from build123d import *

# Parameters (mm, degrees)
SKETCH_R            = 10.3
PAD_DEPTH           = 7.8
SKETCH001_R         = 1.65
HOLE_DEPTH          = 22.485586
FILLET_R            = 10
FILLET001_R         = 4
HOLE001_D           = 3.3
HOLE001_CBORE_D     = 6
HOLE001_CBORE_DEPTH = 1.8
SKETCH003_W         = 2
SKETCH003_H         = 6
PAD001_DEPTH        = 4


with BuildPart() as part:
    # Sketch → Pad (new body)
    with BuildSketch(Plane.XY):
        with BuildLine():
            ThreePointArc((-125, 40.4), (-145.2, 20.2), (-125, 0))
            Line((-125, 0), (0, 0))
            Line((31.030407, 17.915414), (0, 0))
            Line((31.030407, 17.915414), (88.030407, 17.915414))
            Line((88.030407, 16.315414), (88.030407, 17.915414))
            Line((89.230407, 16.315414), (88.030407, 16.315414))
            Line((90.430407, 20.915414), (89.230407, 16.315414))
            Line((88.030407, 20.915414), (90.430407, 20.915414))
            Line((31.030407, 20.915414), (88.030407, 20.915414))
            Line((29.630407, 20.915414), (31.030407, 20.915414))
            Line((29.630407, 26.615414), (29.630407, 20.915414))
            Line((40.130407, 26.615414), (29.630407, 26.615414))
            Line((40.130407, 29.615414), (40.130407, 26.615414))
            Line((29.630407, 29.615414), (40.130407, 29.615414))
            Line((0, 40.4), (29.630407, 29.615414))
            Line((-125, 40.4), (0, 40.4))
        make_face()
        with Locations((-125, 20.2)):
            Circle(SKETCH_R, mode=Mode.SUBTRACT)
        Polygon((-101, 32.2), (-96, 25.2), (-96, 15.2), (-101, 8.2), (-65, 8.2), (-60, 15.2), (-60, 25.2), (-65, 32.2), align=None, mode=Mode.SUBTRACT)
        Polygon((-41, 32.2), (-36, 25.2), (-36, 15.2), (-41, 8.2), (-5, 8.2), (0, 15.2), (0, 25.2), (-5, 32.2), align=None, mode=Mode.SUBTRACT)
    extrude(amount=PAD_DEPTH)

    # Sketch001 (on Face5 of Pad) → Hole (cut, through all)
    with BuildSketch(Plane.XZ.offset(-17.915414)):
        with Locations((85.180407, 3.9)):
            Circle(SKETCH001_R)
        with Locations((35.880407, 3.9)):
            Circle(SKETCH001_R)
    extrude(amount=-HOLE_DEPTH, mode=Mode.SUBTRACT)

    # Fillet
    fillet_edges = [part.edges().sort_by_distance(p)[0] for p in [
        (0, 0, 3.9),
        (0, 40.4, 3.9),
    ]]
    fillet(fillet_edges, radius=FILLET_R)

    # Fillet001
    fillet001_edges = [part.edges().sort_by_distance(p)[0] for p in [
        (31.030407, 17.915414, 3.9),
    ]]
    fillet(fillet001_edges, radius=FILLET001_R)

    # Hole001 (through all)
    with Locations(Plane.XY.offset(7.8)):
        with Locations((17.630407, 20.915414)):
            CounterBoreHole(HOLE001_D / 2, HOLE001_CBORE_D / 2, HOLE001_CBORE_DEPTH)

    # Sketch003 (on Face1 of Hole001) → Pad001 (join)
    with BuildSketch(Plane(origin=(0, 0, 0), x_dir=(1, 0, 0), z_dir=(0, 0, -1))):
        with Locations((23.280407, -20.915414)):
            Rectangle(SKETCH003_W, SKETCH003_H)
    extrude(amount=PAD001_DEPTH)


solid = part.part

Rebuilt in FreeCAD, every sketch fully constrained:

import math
import FreeCAD as App
import Part
import Sketcher
from FreeCAD import Vector
Q = App.Units.Quantity


def edges_at(feature, points):
    """Names of the edges that pass closest to the given points."""
    edges = feature.Shape.Edges
    near = lambda p: min(range(len(edges)), key=lambda i: edges[i].distToShape(Part.Vertex(*p))[0])
    return sorted({f"Edge{near(p) + 1}" for p in points})

doc = App.newDocument("Part")
params = doc.addObject("Spreadsheet::Sheet", "Params")
for row, (alias, value) in enumerate([
    ("sketch1_diameter", "20.6 mm"),
    ("sketch1_radius", "20.2 mm"),
    ("sketch1_width", "125 mm"),
    ("sketch1_width2", "57 mm"),
    ("sketch1_width3", "36 mm"),
    ("pad1_length", "7.8 mm"),
    ("sketch2_diameter", "3.3 mm"),
    ("fillet_radius", "10 mm"),
    ("fillet2_radius", "4 mm"),
    ("sketch3_diameter", "3.3 mm"),
    ("hole_diameter", "3.3 mm"),
    ("hole_cbore_diameter", "6 mm"),
    ("hole_cbore_depth", "1.8 mm"),
    ("sketch4_width", "2 mm"),
    ("sketch4_height", "6 mm"),
    ("pad2_length", "4 mm"),
], start=1):
    params.set(f"A{row}", alias)
    params.set(f"B{row}", "=" + value)
    params.setAlias(f"B{row}", alias)

body = doc.addObject("PartDesign::Body", "Body")

sketch1 = body.newObject("Sketcher::SketchObject", "Sketch")
sketch1.AttachmentSupport = (doc.getObject("XY_Plane"), [""])
sketch1.MapMode = "FlatFace"
sketch1.addGeometry(Part.ArcOfCircle(Part.Circle(Vector(-125, 20.2, 0), Vector(0, 0, 1), 20.2), math.radians(90), math.radians(270)), False)
sketch1.addGeometry(Part.LineSegment(Vector(-125, 0, 0), Vector(0, 0, 0)), False)
sketch1.addGeometry(Part.LineSegment(Vector(0, 0, 0), Vector(31, 17.9, 0)), False)
sketch1.addGeometry(Part.LineSegment(Vector(31, 17.9, 0), Vector(88, 17.9, 0)), False)
sketch1.addGeometry(Part.LineSegment(Vector(88, 17.9, 0), Vector(88, 16.3, 0)), False)
sketch1.addGeometry(Part.LineSegment(Vector(88, 16.3, 0), Vector(89.2, 16.3, 0)), False)
sketch1.addGeometry(Part.LineSegment(Vector(89.2, 16.3, 0), Vector(90.4, 20.9, 0)), False)
sketch1.addGeometry(Part.LineSegment(Vector(90.4, 20.9, 0), Vector(29.6, 20.9, 0)), False)
sketch1.addGeometry(Part.LineSegment(Vector(29.6, 20.9, 0), Vector(29.6, 26.6, 0)), False)
sketch1.addGeometry(Part.LineSegment(Vector(29.6, 26.6, 0), Vector(40.1, 26.6, 0)), False)
sketch1.addGeometry(Part.LineSegment(Vector(40.1, 26.6, 0), Vector(40.1, 29.6, 0)), False)
sketch1.addGeometry(Part.LineSegment(Vector(40.1, 29.6, 0), Vector(29.6, 29.6, 0)), False)
sketch1.addGeometry(Part.LineSegment(Vector(29.6, 29.6, 0), Vector(0, 40.4, 0)), False)
sketch1.addGeometry(Part.LineSegment(Vector(0, 40.4, 0), Vector(-125, 40.4, 0)), False)
sketch1.addGeometry(Part.Circle(Vector(-125, 20.2, 0), Vector(0, 0, 1), 10.3), False)
sketch1.addGeometry(Part.LineSegment(Vector(-96, 25.2, 0), Vector(-101, 32.2, 0)), False)
sketch1.addGeometry(Part.LineSegment(Vector(-101, 32.2, 0), Vector(-65, 32.2, 0)), False)
sketch1.addGeometry(Part.LineSegment(Vector(-65, 32.2, 0), Vector(-60, 25.2, 0)), False)
sketch1.addGeometry(Part.LineSegment(Vector(-60, 25.2, 0), Vector(-60, 15.2, 0)), False)
sketch1.addGeometry(Part.LineSegment(Vector(-60, 15.2, 0), Vector(-65, 8.2, 0)), False)
sketch1.addGeometry(Part.LineSegment(Vector(-65, 8.2, 0), Vector(-101, 8.2, 0)), False)
sketch1.addGeometry(Part.LineSegment(Vector(-101, 8.2, 0), Vector(-96, 15.2, 0)), False)
sketch1.addGeometry(Part.LineSegment(Vector(-96, 15.2, 0), Vector(-96, 25.2, 0)), False)
sketch1.addGeometry(Part.LineSegment(Vector(-36, 25.2, 0), Vector(-41, 32.2, 0)), False)
sketch1.addGeometry(Part.LineSegment(Vector(-41, 32.2, 0), Vector(-5, 32.2, 0)), False)
sketch1.addGeometry(Part.LineSegment(Vector(-5, 32.2, 0), Vector(0, 25.2, 0)), False)
sketch1.addGeometry(Part.LineSegment(Vector(0, 25.2, 0), Vector(0, 15.2, 0)), False)
sketch1.addGeometry(Part.LineSegment(Vector(0, 15.2, 0), Vector(-5, 8.2, 0)), False)
sketch1.addGeometry(Part.LineSegment(Vector(-5, 8.2, 0), Vector(-41, 8.2, 0)), False)
sketch1.addGeometry(Part.LineSegment(Vector(-41, 8.2, 0), Vector(-36, 15.2, 0)), False)
sketch1.addGeometry(Part.LineSegment(Vector(-36, 15.2, 0), Vector(-36, 25.2, 0)), False)
sketch1.addConstraint(Sketcher.Constraint("Tangent", 0, 2, 1, 1))
sketch1.addConstraint(Sketcher.Constraint("Coincident", 1, 2, 2, 1))
sketch1.addConstraint(Sketcher.Constraint("Coincident", 2, 2, 3, 1))
sketch1.addConstraint(Sketcher.Constraint("Coincident", 3, 2, 4, 1))
sketch1.addConstraint(Sketcher.Constraint("Coincident", 4, 2, 5, 1))
sketch1.addConstraint(Sketcher.Constraint("Coincident", 5, 2, 6, 1))
sketch1.addConstraint(Sketcher.Constraint("Coincident", 6, 2, 7, 1))
sketch1.addConstraint(Sketcher.Constraint("Coincident", 7, 2, 8, 1))
sketch1.addConstraint(Sketcher.Constraint("Coincident", 8, 2, 9, 1))
sketch1.addConstraint(Sketcher.Constraint("Coincident", 9, 2, 10, 1))
sketch1.addConstraint(Sketcher.Constraint("Coincident", 10, 2, 11, 1))
sketch1.addConstraint(Sketcher.Constraint("Coincident", 11, 2, 12, 1))
sketch1.addConstraint(Sketcher.Constraint("Coincident", 12, 2, 13, 1))
sketch1.addConstraint(Sketcher.Constraint("Tangent", 13, 2, 0, 1))
sketch1.addConstraint(Sketcher.Constraint("Coincident", 15, 2, 16, 1))
sketch1.addConstraint(Sketcher.Constraint("Coincident", 16, 2, 17, 1))
sketch1.addConstraint(Sketcher.Constraint("Coincident", 17, 2, 18, 1))
sketch1.addConstraint(Sketcher.Constraint("Coincident", 18, 2, 19, 1))
sketch1.addConstraint(Sketcher.Constraint("Coincident", 19, 2, 20, 1))
sketch1.addConstraint(Sketcher.Constraint("Coincident", 20, 2, 21, 1))
sketch1.addConstraint(Sketcher.Constraint("Coincident", 21, 2, 22, 1))
sketch1.addConstraint(Sketcher.Constraint("Coincident", 22, 2, 15, 1))
sketch1.addConstraint(Sketcher.Constraint("Coincident", 23, 2, 24, 1))
sketch1.addConstraint(Sketcher.Constraint("Coincident", 24, 2, 25, 1))
sketch1.addConstraint(Sketcher.Constraint("Coincident", 25, 2, 26, 1))
sketch1.addConstraint(Sketcher.Constraint("Coincident", 26, 2, 27, 1))
sketch1.addConstraint(Sketcher.Constraint("Coincident", 27, 2, 28, 1))
sketch1.addConstraint(Sketcher.Constraint("Coincident", 28, 2, 29, 1))
sketch1.addConstraint(Sketcher.Constraint("Coincident", 29, 2, 30, 1))
sketch1.addConstraint(Sketcher.Constraint("Coincident", 30, 2, 23, 1))
sketch1.addConstraint(Sketcher.Constraint("Horizontal", 1))
sketch1.addConstraint(Sketcher.Constraint("Horizontal", 3))
sketch1.addConstraint(Sketcher.Constraint("Vertical", 4))
sketch1.addConstraint(Sketcher.Constraint("Horizontal", 5))
sketch1.addConstraint(Sketcher.Constraint("Horizontal", 7))
sketch1.addConstraint(Sketcher.Constraint("Vertical", 8))
sketch1.addConstraint(Sketcher.Constraint("Horizontal", 9))
sketch1.addConstraint(Sketcher.Constraint("Vertical", 10))
sketch1.addConstraint(Sketcher.Constraint("Horizontal", 11))
sketch1.addConstraint(Sketcher.Constraint("Horizontal", 13))
sketch1.addConstraint(Sketcher.Constraint("Horizontal", 16))
sketch1.addConstraint(Sketcher.Constraint("Vertical", 18))
sketch1.addConstraint(Sketcher.Constraint("Horizontal", 20))
sketch1.addConstraint(Sketcher.Constraint("Vertical", 22))
sketch1.addConstraint(Sketcher.Constraint("Horizontal", 24))
sketch1.addConstraint(Sketcher.Constraint("Vertical", 26))
sketch1.addConstraint(Sketcher.Constraint("Horizontal", 28))
sketch1.addConstraint(Sketcher.Constraint("Vertical", 30))
sketch1.addConstraint(Sketcher.Constraint("Coincident", 1, 2, -1, 1))
sketch1.addConstraint(Sketcher.Constraint("Coincident", 14, 3, 0, 3))
sketch1.addConstraint(Sketcher.Constraint("PointOnObject", 12, 2, -2))
sketch1.addConstraint(Sketcher.Constraint("PointOnObject", 25, 2, -2))
sketch1.addConstraint(Sketcher.Constraint("Parallel", 15, 17))
sketch1.addConstraint(Sketcher.Constraint("Parallel", 19, 21))
sketch1.addConstraint(Sketcher.Constraint("Parallel", 17, 23))
sketch1.addConstraint(Sketcher.Constraint("Parallel", 23, 25))
sketch1.addConstraint(Sketcher.Constraint("Parallel", 21, 27))
sketch1.addConstraint(Sketcher.Constraint("Parallel", 27, 29))
sketch1.addConstraint(Sketcher.Constraint("Horizontal", 18, 2, 21, 2))
sketch1.addConstraint(Sketcher.Constraint("Horizontal", 17, 2, 22, 2))
sketch1.addConstraint(Sketcher.Constraint("Horizontal", 16, 2, 23, 2))
sketch1.addConstraint(Sketcher.Constraint("Horizontal", 22, 2, 25, 2))
sketch1.addConstraint(Sketcher.Constraint("Horizontal", 21, 2, 26, 2))
sketch1.addConstraint(Sketcher.Constraint("Horizontal", 20, 2, 27, 2))
sketch1.addConstraint(Sketcher.Constraint("Horizontal", 26, 2, 29, 2))
sketch1.addConstraint(Sketcher.Constraint("Horizontal", 25, 2, 30, 2))
sketch1.addConstraint(Sketcher.Constraint("Vertical", 8, 2, 11, 2))
sketch1.addConstraint(Sketcher.Constraint("Vertical", 16, 2, 19, 2))
sketch1.addConstraint(Sketcher.Constraint("Equal", 20, 24))
sketch1.addConstraint(Sketcher.Constraint("Equal", 17, 19))
sketch1.addConstraint(Sketcher.Constraint("Diameter", 14, Q("20.6 mm")))
sketch1.addConstraint(Sketcher.Constraint("Radius", 0, Q("20.2 mm")))
sketch1.addConstraint(Sketcher.Constraint("DistanceX", 1, 1, 1, 2, Q("125 mm")))
sketch1.addConstraint(Sketcher.Constraint("DistanceX", 3, 1, 3, 2, Q("57 mm")))
sketch1.addConstraint(Sketcher.Constraint("DistanceX", 16, 1, 16, 2, Q("36 mm")))
sketch1.addConstraint(Sketcher.Constraint("DistanceY", 10, 1, 10, 2, Q("3 mm")))
sketch1.addConstraint(Sketcher.Constraint("DistanceY", 18, 2, 18, 1, Q("10 mm")))
sketch1.addConstraint(Sketcher.Constraint("Angle", 2, Q("30 deg")))
sketch1.addConstraint(Sketcher.Constraint("Angle", 12, Q("160 deg")))
sketch1.addConstraint(Sketcher.Constraint("DistanceX", 5, 1, 5, 2, Q("1.2 mm")))
sketch1.addConstraint(Sketcher.Constraint("DistanceX", 7, 2, 7, 1, Q("60.8 mm")))
sketch1.addConstraint(Sketcher.Constraint("DistanceX", 9, 1, 9, 2, Q("10.5 mm")))
sketch1.addConstraint(Sketcher.Constraint("DistanceY", 4, 2, 4, 1, Q("1.6 mm")))
sketch1.addConstraint(Sketcher.Constraint("DistanceY", 8, 1, 8, 2, Q("5.7 mm")))
sketch1.addConstraint(Sketcher.Constraint("DistanceX", 15, 2, -1, 1, Q("101 mm")))
sketch1.addConstraint(Sketcher.Constraint("DistanceX", 17, 2, -1, 1, Q("60 mm")))
sketch1.addConstraint(Sketcher.Constraint("DistanceY", 3, 2, 6, 2, Q("3 mm")))
sketch1.addConstraint(Sketcher.Constraint("DistanceY", 0, 3, 15, 2, Q("12 mm")))
sketch1.addConstraint(Sketcher.Constraint("DistanceY", 17, 2, 16, 2, Q("7 mm")))
sketch1.addConstraint(Sketcher.Constraint("DistanceX", 3, 2, 6, 2, Q("2.4 mm")))
sketch1.setExpression("Constraints[70]", "Params.sketch1_diameter")
sketch1.setExpression("Constraints[71]", "Params.sketch1_radius")
sketch1.setExpression("Constraints[72]", "Params.sketch1_width")
sketch1.setExpression("Constraints[73]", "Params.sketch1_width2")
sketch1.setExpression("Constraints[74]", "Params.sketch1_width3")
pad1 = body.newObject("PartDesign::Pad", "Pad")
pad1.Profile = sketch1
pad1.setExpression("Length", "Params.pad1_length")

sketch2 = body.newObject("Sketcher::SketchObject", "Sketch001")
sketch2.AttachmentSupport = (doc.getObject("XZ_Plane"), [""])
sketch2.MapMode = "FlatFace"
sketch2.AttachmentOffset = App.Placement(Vector(0, 0, -17.915414), App.Rotation())
sketch2.addGeometry(Part.Circle(Vector(85.2, 3.9, 0), Vector(0, 0, 1), 1.6), False)
sketch2.addGeometry(Part.Circle(Vector(35.9, 3.9, 0), Vector(0, 0, 1), 1.6), False)
sketch2.addConstraint(Sketcher.Constraint("Equal", 0, 1))
sketch2.addConstraint(Sketcher.Constraint("Horizontal", 0, 3, 1, 3))
sketch2.addConstraint(Sketcher.Constraint("Diameter", 0, Q("3.3 mm")))
sketch2.addConstraint(Sketcher.Constraint("DistanceY", -1, 1, 0, 3, Q("3.9 mm")))
sketch2.addConstraint(Sketcher.Constraint("DistanceX", 1, 3, 0, 3, Q("49.3 mm")))
sketch2.addConstraint(Sketcher.Constraint("DistanceX", -1, 1, 0, 3, Q("85.180407 mm")))
sketch2.setExpression("Constraints[2]", "Params.sketch2_diameter")
pocket1 = body.newObject("PartDesign::Pocket", "Pocket")
pocket1.Profile = sketch2
pocket1.Type = "ThroughAll"
doc.recompute()

fillet = body.newObject("PartDesign::Fillet", "Fillet")
fillet.Base = (pocket1, edges_at(pocket1, [(0, 0, 3.9), (0, 40.4, 3.9)]))
fillet.setExpression("Radius", "Params.fillet_radius")
doc.recompute()

fillet2 = body.newObject("PartDesign::Fillet", "Fillet001")
fillet2.Base = (fillet, edges_at(fillet, [(31.03, 17.915, 3.9)]))
fillet2.setExpression("Radius", "Params.fillet2_radius")

sketch3 = body.newObject("Sketcher::SketchObject", "Sketch002")
sketch3.AttachmentSupport = (doc.getObject("XY_Plane"), [""])
sketch3.MapMode = "FlatFace"
sketch3.AttachmentOffset = App.Placement(Vector(0, 0, 7.8), App.Rotation())
sketch3.addGeometry(Part.Circle(Vector(17.6, 20.9, 0), Vector(0, 0, 1), 1.6), False)
sketch3.addConstraint(Sketcher.Constraint("Diameter", 0, Q("3.3 mm")))
sketch3.addConstraint(Sketcher.Constraint("DistanceX", -1, 1, 0, 3, Q("17.630407 mm")))
sketch3.addConstraint(Sketcher.Constraint("DistanceY", -1, 1, 0, 3, Q("20.915414 mm")))
sketch3.setExpression("Constraints[0]", "Params.sketch3_diameter")
doc.recompute()
hole = body.newObject("PartDesign::Hole", "Hole")
hole.Profile = sketch3
hole.ThreadType = "None"
hole.setExpression("Diameter", "Params.hole_diameter")
hole.DepthType = "ThroughAll"
hole.HoleCutType = "Counterbore"
hole.setExpression("HoleCutDiameter", "Params.hole_cbore_diameter")
hole.setExpression("HoleCutDepth", "Params.hole_cbore_depth")

sketch4 = body.newObject("Sketcher::SketchObject", "Sketch003")
sketch4.AttachmentSupport = (doc.getObject("XY_Plane"), [""])
sketch4.MapMode = "FlatFace"
sketch4.addGeometry(Part.LineSegment(Vector(22.3, 17.9, 0), Vector(22.3, 23.9, 0)), False)
sketch4.addGeometry(Part.LineSegment(Vector(22.3, 23.9, 0), Vector(24.3, 23.9, 0)), False)
sketch4.addGeometry(Part.LineSegment(Vector(24.3, 23.9, 0), Vector(24.3, 17.9, 0)), False)
sketch4.addGeometry(Part.LineSegment(Vector(24.3, 17.9, 0), Vector(22.3, 17.9, 0)), False)
sketch4.addConstraint(Sketcher.Constraint("Coincident", 0, 2, 1, 1))
sketch4.addConstraint(Sketcher.Constraint("Coincident", 1, 2, 2, 1))
sketch4.addConstraint(Sketcher.Constraint("Coincident", 2, 2, 3, 1))
sketch4.addConstraint(Sketcher.Constraint("Coincident", 3, 2, 0, 1))
sketch4.addConstraint(Sketcher.Constraint("Vertical", 0))
sketch4.addConstraint(Sketcher.Constraint("Horizontal", 1))
sketch4.addConstraint(Sketcher.Constraint("Vertical", 2))
sketch4.addConstraint(Sketcher.Constraint("Horizontal", 3))
sketch4.addConstraint(Sketcher.Constraint("DistanceX", 1, 1, 1, 2, Q("2 mm")))
sketch4.addConstraint(Sketcher.Constraint("DistanceY", 0, 1, 0, 2, Q("6 mm")))
sketch4.addConstraint(Sketcher.Constraint("DistanceX", -1, 1, 0, 2, Q("22.280407 mm")))
sketch4.addConstraint(Sketcher.Constraint("DistanceY", -1, 1, 0, 2, Q("23.915414 mm")))
sketch4.setExpression("Constraints[8]", "Params.sketch4_width")
sketch4.setExpression("Constraints[9]", "Params.sketch4_height")
pad2 = body.newObject("PartDesign::Pad", "Pad001")
pad2.Profile = sketch4
pad2.setExpression("Length", "Params.pad2_length")
pad2.Reversed = True

doc.recompute()
